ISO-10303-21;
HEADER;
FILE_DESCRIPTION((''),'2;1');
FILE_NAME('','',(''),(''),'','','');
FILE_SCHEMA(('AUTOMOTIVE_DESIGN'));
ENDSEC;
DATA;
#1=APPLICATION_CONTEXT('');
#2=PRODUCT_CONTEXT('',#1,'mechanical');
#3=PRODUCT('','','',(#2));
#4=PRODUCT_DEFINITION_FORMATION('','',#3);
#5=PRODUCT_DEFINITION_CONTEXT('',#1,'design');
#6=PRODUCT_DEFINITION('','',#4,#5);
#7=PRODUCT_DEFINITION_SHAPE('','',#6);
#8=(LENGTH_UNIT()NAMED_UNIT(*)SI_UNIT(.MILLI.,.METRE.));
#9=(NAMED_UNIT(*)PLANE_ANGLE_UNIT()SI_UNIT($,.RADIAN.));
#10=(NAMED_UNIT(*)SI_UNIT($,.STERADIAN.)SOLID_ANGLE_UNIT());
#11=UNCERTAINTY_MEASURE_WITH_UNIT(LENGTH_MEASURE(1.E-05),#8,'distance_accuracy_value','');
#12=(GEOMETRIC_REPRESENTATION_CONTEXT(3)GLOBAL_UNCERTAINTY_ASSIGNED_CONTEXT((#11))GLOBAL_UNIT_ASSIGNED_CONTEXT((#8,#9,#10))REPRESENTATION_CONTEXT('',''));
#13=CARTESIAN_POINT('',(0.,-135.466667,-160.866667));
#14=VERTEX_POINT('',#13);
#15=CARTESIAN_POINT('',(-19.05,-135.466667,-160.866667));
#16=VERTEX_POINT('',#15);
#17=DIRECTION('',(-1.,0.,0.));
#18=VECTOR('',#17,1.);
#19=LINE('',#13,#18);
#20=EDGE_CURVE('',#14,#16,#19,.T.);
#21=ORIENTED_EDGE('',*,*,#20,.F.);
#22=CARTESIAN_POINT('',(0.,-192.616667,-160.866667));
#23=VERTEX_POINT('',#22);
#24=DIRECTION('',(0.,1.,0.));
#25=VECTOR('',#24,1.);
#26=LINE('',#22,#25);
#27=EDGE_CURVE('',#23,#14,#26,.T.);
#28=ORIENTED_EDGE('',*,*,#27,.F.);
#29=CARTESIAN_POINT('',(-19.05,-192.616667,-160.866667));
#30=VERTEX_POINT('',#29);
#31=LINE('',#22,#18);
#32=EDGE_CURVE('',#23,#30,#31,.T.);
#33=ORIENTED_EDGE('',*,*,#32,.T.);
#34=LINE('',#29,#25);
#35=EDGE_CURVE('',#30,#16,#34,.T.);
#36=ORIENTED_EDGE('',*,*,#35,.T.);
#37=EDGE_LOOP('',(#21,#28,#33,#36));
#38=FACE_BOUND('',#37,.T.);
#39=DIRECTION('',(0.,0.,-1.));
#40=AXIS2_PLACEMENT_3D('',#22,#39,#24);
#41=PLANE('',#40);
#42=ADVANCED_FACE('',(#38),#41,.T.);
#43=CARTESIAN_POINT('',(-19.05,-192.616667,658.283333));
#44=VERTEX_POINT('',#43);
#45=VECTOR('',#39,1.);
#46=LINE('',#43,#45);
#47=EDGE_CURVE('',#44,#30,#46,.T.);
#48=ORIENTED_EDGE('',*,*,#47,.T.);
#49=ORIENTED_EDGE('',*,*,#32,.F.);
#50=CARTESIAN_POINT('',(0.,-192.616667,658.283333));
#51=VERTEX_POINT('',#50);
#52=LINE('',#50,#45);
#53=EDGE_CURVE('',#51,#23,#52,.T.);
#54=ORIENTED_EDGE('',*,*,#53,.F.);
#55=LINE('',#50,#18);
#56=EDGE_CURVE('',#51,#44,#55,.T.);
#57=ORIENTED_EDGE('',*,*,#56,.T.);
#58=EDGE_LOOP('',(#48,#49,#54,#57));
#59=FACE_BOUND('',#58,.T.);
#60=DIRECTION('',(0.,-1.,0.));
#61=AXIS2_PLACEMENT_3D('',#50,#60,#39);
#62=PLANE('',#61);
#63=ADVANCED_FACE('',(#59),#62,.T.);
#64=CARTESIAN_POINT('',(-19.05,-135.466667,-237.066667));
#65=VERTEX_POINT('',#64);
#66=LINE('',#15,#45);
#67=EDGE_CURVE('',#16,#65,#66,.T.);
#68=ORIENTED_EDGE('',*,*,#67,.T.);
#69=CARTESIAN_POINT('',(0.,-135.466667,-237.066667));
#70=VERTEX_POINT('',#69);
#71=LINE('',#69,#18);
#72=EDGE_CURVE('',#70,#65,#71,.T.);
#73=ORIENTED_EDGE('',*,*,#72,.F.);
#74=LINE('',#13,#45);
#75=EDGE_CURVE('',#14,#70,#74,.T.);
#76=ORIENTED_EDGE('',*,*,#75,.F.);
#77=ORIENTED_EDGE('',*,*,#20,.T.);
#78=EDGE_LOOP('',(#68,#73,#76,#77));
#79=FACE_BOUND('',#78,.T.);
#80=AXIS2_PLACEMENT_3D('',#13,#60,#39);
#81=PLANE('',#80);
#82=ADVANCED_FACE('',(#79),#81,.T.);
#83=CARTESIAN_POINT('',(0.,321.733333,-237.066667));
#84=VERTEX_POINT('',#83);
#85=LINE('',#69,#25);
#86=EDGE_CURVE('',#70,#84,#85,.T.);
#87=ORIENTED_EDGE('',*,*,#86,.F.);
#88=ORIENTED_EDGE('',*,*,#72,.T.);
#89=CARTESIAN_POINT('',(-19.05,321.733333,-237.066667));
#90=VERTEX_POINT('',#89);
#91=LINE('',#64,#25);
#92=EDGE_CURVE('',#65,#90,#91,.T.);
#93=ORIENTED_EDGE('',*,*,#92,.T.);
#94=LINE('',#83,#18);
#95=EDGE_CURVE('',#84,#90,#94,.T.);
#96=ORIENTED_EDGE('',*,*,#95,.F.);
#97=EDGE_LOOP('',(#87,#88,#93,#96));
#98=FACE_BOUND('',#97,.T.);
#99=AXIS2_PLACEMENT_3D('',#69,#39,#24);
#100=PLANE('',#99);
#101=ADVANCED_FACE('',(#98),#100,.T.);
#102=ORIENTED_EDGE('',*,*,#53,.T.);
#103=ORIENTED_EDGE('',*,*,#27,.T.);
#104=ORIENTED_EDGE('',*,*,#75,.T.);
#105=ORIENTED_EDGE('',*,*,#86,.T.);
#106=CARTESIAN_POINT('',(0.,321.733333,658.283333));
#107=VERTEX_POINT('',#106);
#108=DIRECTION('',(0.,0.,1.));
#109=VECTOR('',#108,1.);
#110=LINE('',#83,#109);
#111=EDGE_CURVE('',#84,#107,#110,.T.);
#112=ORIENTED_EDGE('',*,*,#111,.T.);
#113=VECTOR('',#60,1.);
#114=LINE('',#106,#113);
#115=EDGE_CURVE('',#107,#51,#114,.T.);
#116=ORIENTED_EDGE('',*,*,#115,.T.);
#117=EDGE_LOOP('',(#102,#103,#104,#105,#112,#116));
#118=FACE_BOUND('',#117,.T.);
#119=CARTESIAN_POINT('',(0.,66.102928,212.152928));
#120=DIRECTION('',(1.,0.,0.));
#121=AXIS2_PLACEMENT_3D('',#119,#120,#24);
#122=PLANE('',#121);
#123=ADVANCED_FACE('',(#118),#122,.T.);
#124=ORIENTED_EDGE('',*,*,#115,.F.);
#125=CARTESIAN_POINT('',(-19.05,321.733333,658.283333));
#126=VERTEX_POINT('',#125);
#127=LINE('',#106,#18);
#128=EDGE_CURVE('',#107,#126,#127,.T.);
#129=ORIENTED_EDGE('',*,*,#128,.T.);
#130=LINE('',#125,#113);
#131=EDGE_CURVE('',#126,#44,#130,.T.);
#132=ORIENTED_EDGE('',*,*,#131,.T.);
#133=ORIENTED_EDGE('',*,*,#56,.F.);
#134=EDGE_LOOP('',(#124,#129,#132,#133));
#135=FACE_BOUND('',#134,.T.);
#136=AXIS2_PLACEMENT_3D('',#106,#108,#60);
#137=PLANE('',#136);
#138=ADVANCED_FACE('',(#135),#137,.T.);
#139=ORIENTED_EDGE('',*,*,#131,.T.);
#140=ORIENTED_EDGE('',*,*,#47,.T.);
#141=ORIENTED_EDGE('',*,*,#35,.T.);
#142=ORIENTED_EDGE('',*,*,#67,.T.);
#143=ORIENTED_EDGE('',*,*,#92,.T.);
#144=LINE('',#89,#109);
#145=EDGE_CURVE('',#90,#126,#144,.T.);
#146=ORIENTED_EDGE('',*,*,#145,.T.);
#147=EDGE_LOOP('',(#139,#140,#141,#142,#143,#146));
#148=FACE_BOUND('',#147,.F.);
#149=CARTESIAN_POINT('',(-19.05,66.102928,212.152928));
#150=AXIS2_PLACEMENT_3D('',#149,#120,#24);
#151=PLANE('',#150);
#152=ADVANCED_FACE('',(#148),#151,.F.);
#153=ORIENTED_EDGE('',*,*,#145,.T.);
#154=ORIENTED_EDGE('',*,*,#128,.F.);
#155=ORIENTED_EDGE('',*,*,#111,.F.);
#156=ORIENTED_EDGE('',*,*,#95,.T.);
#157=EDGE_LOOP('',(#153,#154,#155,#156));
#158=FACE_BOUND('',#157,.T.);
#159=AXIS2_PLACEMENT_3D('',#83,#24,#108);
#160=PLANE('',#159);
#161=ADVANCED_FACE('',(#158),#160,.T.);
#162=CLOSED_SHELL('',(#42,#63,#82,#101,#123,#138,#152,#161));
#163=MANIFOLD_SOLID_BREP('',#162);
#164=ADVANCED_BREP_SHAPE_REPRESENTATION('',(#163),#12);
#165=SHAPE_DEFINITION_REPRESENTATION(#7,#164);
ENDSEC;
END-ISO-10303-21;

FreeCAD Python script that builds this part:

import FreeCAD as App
import Part
import Sketcher
from FreeCAD import Vector
Q = App.Units.Quantity

doc = App.newDocument("Part")
params = doc.addObject("Spreadsheet::Sheet", "Params")
for row, (alias, value) in enumerate([
    ("sketch1_width", "18 in"),
    ("sketch1_height", "3 in"),
    ("sketch1_width2", "20.25 in"),
    ("sketch1_height2", "32.25 in"),
    ("pad1_length", "0.75 in"),
], start=1):
    params.set(f"A{row}", alias)
    params.set(f"B{row}", "=" + value)
    params.setAlias(f"B{row}", alias)

body = doc.addObject("PartDesign::Body", "Body")

# Sketch on YZ plane
sketch1 = body.newObject("Sketcher::SketchObject", "Sketch")
sketch1.AttachmentSupport = (doc.getObject("YZ_Plane"), [""])
sketch1.MapMode = "FlatFace"
sketch1.addGeometry([
    Part.LineSegment(Vector(321.733333, 658.283333, 0), Vector(-192.616667, 658.283333, 0)),  # 0
    Part.LineSegment(Vector(-192.616667, 658.283333, 0), Vector(-192.616667, -160.866667, 0)),  # 1
    Part.LineSegment(Vector(-192.616667, -160.866667, 0), Vector(-135.466667, -160.866667, 0)),  # 2
    Part.LineSegment(Vector(-135.466667, -160.866667, 0), Vector(-135.466667, -237.066667, 0)),  # 3
    Part.LineSegment(Vector(-135.466667, -237.066667, 0), Vector(321.733333, -237.066667, 0)),  # 4
    Part.LineSegment(Vector(321.733333, -237.066667, 0), Vector(321.733333, 658.283333, 0)),  # 5
], False)
sketch1.addConstraint([
    Sketcher.Constraint("Coincident", 0, 2, 1, 1),
    Sketcher.Constraint("Coincident", 1, 2, 2, 1),
    Sketcher.Constraint("Coincident", 2, 2, 3, 1),
    Sketcher.Constraint("Coincident", 3, 2, 4, 1),
    Sketcher.Constraint("Coincident", 4, 2, 5, 1),
    Sketcher.Constraint("Coincident", 5, 2, 0, 1),
    Sketcher.Constraint("Horizontal", 0),
    Sketcher.Constraint("Vertical", 1),
    Sketcher.Constraint("Horizontal", 2),
    Sketcher.Constraint("Vertical", 3),
    Sketcher.Constraint("Horizontal", 4),
    Sketcher.Constraint("Vertical", 5),
    Sketcher.Constraint("DistanceX", 4, 1, 4, 2, Q("18 in")),
    Sketcher.Constraint("DistanceY", 3, 2, 3, 1, Q("3 in")),
    Sketcher.Constraint("DistanceX", 0, 2, 0, 1, Q("20.25 in")),
    Sketcher.Constraint("DistanceY", 1, 2, 1, 1, Q("32.25 in")),
    Sketcher.Constraint("DistanceX", 0, 2, -1, 1, Q("192.616667 mm")),
    Sketcher.Constraint("DistanceY", -1, 1, 0, 2, Q("658.283333 mm")),
])
sketch1.setExpression("Constraints[12]", "Params.sketch1_width")
sketch1.setExpression("Constraints[13]", "Params.sketch1_height")
sketch1.setExpression("Constraints[14]", "Params.sketch1_width2")
sketch1.setExpression("Constraints[15]", "Params.sketch1_height2")
pad1 = body.newObject("PartDesign::Pad", "Pad")
pad1.Profile = sketch1
pad1.setExpression("Length", "Params.pad1_length")
pad1.Reversed = True

doc.recompute()
